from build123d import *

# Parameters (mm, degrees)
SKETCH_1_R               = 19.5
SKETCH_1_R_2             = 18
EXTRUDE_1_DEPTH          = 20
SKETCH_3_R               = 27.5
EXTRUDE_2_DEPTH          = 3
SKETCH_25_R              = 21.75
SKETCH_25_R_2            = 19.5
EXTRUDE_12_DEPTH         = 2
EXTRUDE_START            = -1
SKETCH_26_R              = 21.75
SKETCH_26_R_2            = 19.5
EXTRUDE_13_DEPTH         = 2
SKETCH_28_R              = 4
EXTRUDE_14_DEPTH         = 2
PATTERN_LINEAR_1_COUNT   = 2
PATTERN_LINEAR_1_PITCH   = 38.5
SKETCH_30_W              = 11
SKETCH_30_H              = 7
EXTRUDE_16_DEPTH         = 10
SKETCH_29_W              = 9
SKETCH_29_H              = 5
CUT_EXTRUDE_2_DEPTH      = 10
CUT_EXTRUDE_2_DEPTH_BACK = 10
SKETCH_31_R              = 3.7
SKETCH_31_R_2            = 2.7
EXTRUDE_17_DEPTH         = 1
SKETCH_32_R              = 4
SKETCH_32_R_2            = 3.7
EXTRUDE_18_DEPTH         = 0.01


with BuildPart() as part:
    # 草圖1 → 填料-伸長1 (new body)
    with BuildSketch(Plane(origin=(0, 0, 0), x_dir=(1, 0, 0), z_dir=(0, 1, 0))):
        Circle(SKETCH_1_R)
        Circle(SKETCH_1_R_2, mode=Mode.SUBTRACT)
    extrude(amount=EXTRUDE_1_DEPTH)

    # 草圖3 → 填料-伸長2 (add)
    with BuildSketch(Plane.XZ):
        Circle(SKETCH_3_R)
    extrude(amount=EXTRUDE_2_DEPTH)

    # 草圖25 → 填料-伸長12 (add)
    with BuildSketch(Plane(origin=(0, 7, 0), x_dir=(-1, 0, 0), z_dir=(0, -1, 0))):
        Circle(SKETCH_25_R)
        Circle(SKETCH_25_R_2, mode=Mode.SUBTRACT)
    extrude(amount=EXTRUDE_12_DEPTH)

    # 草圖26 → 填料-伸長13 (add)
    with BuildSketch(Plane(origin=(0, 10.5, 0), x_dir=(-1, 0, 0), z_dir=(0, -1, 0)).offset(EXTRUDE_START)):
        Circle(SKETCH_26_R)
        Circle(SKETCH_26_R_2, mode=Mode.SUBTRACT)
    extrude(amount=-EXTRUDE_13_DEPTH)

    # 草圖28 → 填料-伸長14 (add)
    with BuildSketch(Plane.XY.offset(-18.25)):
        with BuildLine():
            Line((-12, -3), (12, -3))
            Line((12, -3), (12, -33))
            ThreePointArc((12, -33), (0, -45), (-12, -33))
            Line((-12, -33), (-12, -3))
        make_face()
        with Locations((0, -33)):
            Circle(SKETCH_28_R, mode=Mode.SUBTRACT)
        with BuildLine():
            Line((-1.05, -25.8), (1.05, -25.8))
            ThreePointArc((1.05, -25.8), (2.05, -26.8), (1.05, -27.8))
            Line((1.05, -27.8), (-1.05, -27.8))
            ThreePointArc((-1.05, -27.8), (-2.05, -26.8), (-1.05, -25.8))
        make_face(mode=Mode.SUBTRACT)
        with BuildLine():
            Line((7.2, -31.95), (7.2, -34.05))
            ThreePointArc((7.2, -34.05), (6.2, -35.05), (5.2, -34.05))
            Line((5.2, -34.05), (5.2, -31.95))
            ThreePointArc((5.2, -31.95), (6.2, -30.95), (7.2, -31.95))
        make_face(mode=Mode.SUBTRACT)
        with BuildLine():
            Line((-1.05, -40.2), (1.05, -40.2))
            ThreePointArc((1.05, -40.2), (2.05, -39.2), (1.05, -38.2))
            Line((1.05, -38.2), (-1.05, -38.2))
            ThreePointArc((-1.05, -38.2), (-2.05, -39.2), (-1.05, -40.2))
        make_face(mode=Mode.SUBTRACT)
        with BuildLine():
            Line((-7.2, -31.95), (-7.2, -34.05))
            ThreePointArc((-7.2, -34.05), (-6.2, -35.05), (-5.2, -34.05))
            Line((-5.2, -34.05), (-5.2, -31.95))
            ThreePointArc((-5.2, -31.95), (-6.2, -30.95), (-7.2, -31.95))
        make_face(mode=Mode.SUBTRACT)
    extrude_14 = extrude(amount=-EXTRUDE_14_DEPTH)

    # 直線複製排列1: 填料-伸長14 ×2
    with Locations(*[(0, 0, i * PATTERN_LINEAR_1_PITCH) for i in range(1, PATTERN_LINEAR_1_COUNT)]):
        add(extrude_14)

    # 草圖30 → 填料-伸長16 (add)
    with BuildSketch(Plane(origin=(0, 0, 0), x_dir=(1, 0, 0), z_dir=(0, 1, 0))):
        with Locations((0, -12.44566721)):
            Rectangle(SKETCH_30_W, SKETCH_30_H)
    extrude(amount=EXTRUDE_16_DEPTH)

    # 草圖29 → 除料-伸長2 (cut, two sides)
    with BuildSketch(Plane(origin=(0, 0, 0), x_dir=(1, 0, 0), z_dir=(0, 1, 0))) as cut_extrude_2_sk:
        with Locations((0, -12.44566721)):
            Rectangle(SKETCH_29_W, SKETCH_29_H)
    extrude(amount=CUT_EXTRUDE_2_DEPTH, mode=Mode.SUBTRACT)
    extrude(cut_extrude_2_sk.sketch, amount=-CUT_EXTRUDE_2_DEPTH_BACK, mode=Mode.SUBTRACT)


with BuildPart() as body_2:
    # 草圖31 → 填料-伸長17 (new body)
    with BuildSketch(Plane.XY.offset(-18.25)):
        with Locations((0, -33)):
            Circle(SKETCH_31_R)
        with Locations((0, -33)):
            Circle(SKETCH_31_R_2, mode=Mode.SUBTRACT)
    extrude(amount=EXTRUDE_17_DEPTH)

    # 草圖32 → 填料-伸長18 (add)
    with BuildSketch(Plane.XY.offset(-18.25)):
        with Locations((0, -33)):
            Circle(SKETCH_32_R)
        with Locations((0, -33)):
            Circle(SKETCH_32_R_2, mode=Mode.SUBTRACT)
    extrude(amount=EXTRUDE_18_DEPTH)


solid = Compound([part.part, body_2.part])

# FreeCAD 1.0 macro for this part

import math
import FreeCAD as App
import Part
import Sketcher

V = App.Vector


def add_polygon(sketch, points):
    """Adds a closed chain of lines whose ends are joined by coincident constraints."""
    first, n = sketch.GeometryCount, len(points)
    for a, b in zip(points, points[1:] + points[:1]):
        sketch.addGeometry(Part.LineSegment(App.Vector(*a, 0), App.Vector(*b, 0)), False)
    for i in range(n):
        sketch.addConstraint(Sketcher.Constraint("Coincident", first + i, 2, first + (i + 1) % n, 1))

doc = App.newDocument("Part")
body = doc.addObject("PartDesign::Body", "Body")

sketch1 = body.newObject("Sketcher::SketchObject", "Sketch")
sketch1.AttachmentSupport = (doc.getObject("XZ_Plane"), [""])
sketch1.MapMode = "FlatFace"
sketch1.addGeometry([
    Part.Circle(V(0, 0, 0), V(0, 0, 1), 19.5),
    Part.Circle(V(0, 0, 0), V(0, 0, 1), 18),
], False)
sketch1.addConstraint([
    Sketcher.Constraint("Coincident", 0, 3, -1, 1),
    Sketcher.Constraint("Coincident", 1, 3, -1, 1),
    Sketcher.Constraint("Diameter", 0, 39.0),
    Sketcher.Constraint("Diameter", 1, 36.0),
])
pad1 = body.newObject("PartDesign::Pad", "Pad")
pad1.Profile = sketch1
pad1.Length = 20
pad1.Reversed = True

sketch2 = body.newObject("Sketcher::SketchObject", "Sketch001")
sketch2.AttachmentSupport = (doc.getObject("XZ_Plane"), [""])
sketch2.MapMode = "FlatFace"
sketch2.addGeometry(Part.Circle(V(0, 0, 0), V(0, 0, 1), 27.5), False)
sketch2.addConstraint([
    Sketcher.Constraint("Coincident", 0, 3, -1, 1),
    Sketcher.Constraint("Diameter", 0, 55.0),
])
pad2 = body.newObject("PartDesign::Pad", "Pad001")
pad2.Profile = sketch2
pad2.Length = 3

sketch3 = body.newObject("Sketcher::SketchObject", "Sketch002")
sketch3.AttachmentSupport = (doc.getObject("XZ_Plane"), [""])
sketch3.MapMode = "FlatFace"
sketch3.AttachmentOffset = App.Placement(V(0, 0, -7), App.Rotation())
sketch3.addGeometry([
    Part.Circle(V(0, 0, 0), V(0, 0, 1), 21.75),
    Part.Circle(V(0, 0, 0), V(0, 0, 1), 19.5),
], False)
sketch3.addConstraint([
    Sketcher.Constraint("Coincident", 0, 3, -1, 1),
    Sketcher.Constraint("Coincident", 1, 3, -1, 1),
    Sketcher.Constraint("Diameter", 1, 39.0),
    Sketcher.Constraint("Diameter", 0, 43.5),
])
pad3 = body.newObject("PartDesign::Pad", "Pad002")
pad3.Profile = sketch3
pad3.Length = 2

sketch4 = body.newObject("Sketcher::SketchObject", "Sketch003")
sketch4.AttachmentSupport = (doc.getObject("XZ_Plane"), [""])
sketch4.MapMode = "FlatFace"
sketch4.AttachmentOffset = App.Placement(V(0, 0, -11.5), App.Rotation())
sketch4.addGeometry([
    Part.Circle(V(0, 0, 0), V(0, 0, 1), 21.75),
    Part.Circle(V(0, 0, 0), V(0, 0, 1), 19.5),
], False)
sketch4.addConstraint([
    Sketcher.Constraint("Coincident", 0, 3, -1, 1),
    Sketcher.Constraint("Coincident", 1, 3, -1, 1),
    Sketcher.Constraint("Diameter", 1, 39.0),
    Sketcher.Constraint("Diameter", 0, 43.5),
])
pad4 = body.newObject("PartDesign::Pad", "Pad003")
pad4.Profile = sketch4
pad4.Length = 2
pad4.Reversed = True

sketch5 = body.newObject("Sketcher::SketchObject", "Sketch004")
sketch5.AttachmentSupport = (doc.getObject("XY_Plane"), [""])
sketch5.MapMode = "FlatFace"
sketch5.AttachmentOffset = App.Placement(V(0, 0, -18.25), App.Rotation())
sketch5.addGeometry([
    Part.LineSegment(V(12, -3, 0), V(-12, -3, 0)),
    Part.LineSegment(V(-12, -3, 0), V(-12, -33, 0)),
    Part.ArcOfCircle(Part.Circle(V(0, -33, 0), V(0, 0, 1), 12), math.radians(180), math.radians(360)),
    Part.LineSegment(V(12, -33, 0), V(12, -3, 0)),
    Part.ArcOfCircle(Part.Circle(V(-1.05, -39.2, 0), V(0, 0, 1), 1), math.radians(90), math.radians(270)),
    Part.LineSegment(V(-1.05, -38.2, 0), V(1.05, -38.2, 0)),
    Part.ArcOfCircle(Part.Circle(V(1.05, -39.2, 0), V(0, 0, 1), 1), math.radians(-90), math.radians(90)),
    Part.LineSegment(V(1.05, -40.2, 0), V(-1.05, -40.2, 0)),
    Part.LineSegment(V(7.2, -31.95, 0), V(7.2, -34.05, 0)),
    Part.ArcOfCircle(Part.Circle(V(6.2, -34.05, 0), V(0, 0, 1), 1), math.radians(180), math.radians(360)),
    Part.LineSegment(V(5.2, -34.05, 0), V(5.2, -31.95, 0)),
    Part.ArcOfCircle(Part.Circle(V(6.2, -31.95, 0), V(0, 0, 1), 1), math.radians(0), math.radians(180)),
    Part.Circle(V(0, -33, 0), V(0, 0, 1), 4),
    Part.ArcOfCircle(Part.Circle(V(-6.2, -31.95, 0), V(0, 0, 1), 1), math.radians(0), math.radians(180)),
    Part.LineSegment(V(-5.2, -31.95, 0), V(-5.2, -34.05, 0)),
    Part.ArcOfCircle(Part.Circle(V(-6.2, -34.05, 0), V(0, 0, 1), 1), math.radians(180), math.radians(360)),
    Part.LineSegment(V(-7.2, -34.05, 0), V(-7.2, -31.95, 0)),
    Part.LineSegment(V(-1.05, -25.8, 0), V(1.05, -25.8, 0)),
    Part.ArcOfCircle(Part.Circle(V(1.05, -26.8, 0), V(0, 0, 1), 1), math.radians(-90), math.radians(90)),
    Part.LineSegment(V(1.05, -27.8, 0), V(-1.05, -27.8, 0)),
    Part.ArcOfCircle(Part.Circle(V(-1.05, -26.8, 0), V(0, 0, 1), 1), math.radians(90), math.radians(270)),
], False)
sketch5.addConstraint([
    Sketcher.Constraint("Coincident", 0, 2, 1, 1),
    Sketcher.Constraint("Tangent", 1, 2, 2, 1),
    Sketcher.Constraint("Tangent", 2, 2, 3, 1),
    Sketcher.Constraint("Coincident", 3, 2, 0, 1),
    Sketcher.Constraint("Tangent", 4, 1, 5, 1),
    Sketcher.Constraint("Tangent", 5, 2, 6, 2),
    Sketcher.Constraint("Tangent", 6, 1, 7, 1),
    Sketcher.Constraint("Tangent", 7, 2, 4, 2),
    Sketcher.Constraint("Tangent", 8, 2, 9, 2),
    Sketcher.Constraint("Tangent", 9, 1, 10, 1),
    Sketcher.Constraint("Tangent", 10, 2, 11, 2),
    Sketcher.Constraint("Tangent", 11, 1, 8, 1),
    Sketcher.Constraint("Tangent", 13, 1, 14, 1),
    Sketcher.Constraint("Tangent", 14, 2, 15, 2),
    Sketcher.Constraint("Tangent", 15, 1, 16, 1),
    Sketcher.Constraint("Tangent", 16, 2, 13, 2),
    Sketcher.Constraint("Tangent", 17, 2, 18, 2),
    Sketcher.Constraint("Tangent", 18, 1, 19, 1),
    Sketcher.Constraint("Tangent", 19, 2, 20, 2),
    Sketcher.Constraint("Tangent", 20, 1, 17, 1),
    Sketcher.Constraint("Horizontal", 0),
    Sketcher.Constraint("Vertical", 1),
    Sketcher.Constraint("Vertical", 3),
    Sketcher.Constraint("Horizontal", 5),
    Sketcher.Constraint("Horizontal", 7),
    Sketcher.Constraint("Vertical", 8),
    Sketcher.Constraint("Vertical", 10),
    Sketcher.Constraint("Vertical", 14),
    Sketcher.Constraint("Vertical", 16),
    Sketcher.Constraint("Horizontal", 17),
    Sketcher.Constraint("Horizontal", 19),
    Sketcher.Constraint("Coincident", 12, 3, 2, 3),
    Sketcher.Constraint("Equal", 6, 9),
    Sketcher.Constraint("Equal", 11, 13),
    Sketcher.Constraint("Equal", 15, 18),
    Sketcher.Constraint("Symmetric", 11, 3, 13, 3, -2),
    Sketcher.Constraint("PointOnObject", 2, 3, -2),
    Sketcher.Constraint("Horizontal", 9, 3, 15, 3),
    Sketcher.Constraint("Vertical", 6, 3, 18, 3),
    Sketcher.Constraint("Vertical", 4, 3, 20, 3),
    Sketcher.Constraint("Equal", 19, 8),
    Sketcher.Constraint("Diameter", 12, 8.0),
    Sketcher.Constraint("Radius", 2, 12.0),
    Sketcher.Constraint("Radius", 4, 1.0),
    Sketcher.Constraint("DistanceY", 1, 2, 1, 1, 30.0),
    Sketcher.Constraint("DistanceX", 5, 1, 5, 2, 2.1),
    Sketcher.Constraint("DistanceY", 2, 3, -1, 1, 33.0),
    Sketcher.Constraint("DistanceY", 4, 3, -1, 1, 39.2),
    Sketcher.Constraint("DistanceX", -1, 1, 9, 3, 6.2),
    Sketcher.Constraint("DistanceY", 18, 3, -1, 1, 26.8),
    Sketcher.Constraint("DistanceX", 4, 3, -1, 1, 1.05),
    Sketcher.Constraint("DistanceY", 9, 3, -1, 1, 34.05),
])
pad5 = body.newObject("PartDesign::Pad", "Pad004")
pad5.Profile = sketch5
pad5.Length = 2
pad5.Reversed = True
doc.recompute()

linearpattern = body.newObject("PartDesign::LinearPattern", "LinearPattern")
linearpattern.Originals = [pad5]
linearpattern.Direction = (doc.getObject("Z_Axis"), [""])
linearpattern.Mode = "offset"
linearpattern.Offset = 38.5
linearpattern.Occurrences = 2
body.Tip = linearpattern

sketch6 = body.newObject("Sketcher::SketchObject", "Sketch005")
sketch6.AttachmentSupport = (doc.getObject("XZ_Plane"), [""])
sketch6.MapMode = "FlatFace"
add_polygon(sketch6, [(-5.5, 8.945667), (-5.5, 15.945667), (5.5, 15.945667), (5.5, 8.945667)])
sketch6.addConstraint([
    Sketcher.Constraint("Vertical", 0),
    Sketcher.Constraint("Horizontal", 1),
    Sketcher.Constraint("Vertical", 2),
    Sketcher.Constraint("Horizontal", 3),
    Sketcher.Constraint("DistanceX", 1, 1, 1, 2, 11.0),
    Sketcher.Constraint("DistanceY", 0, 1, 0, 2, 7.0),
    Sketcher.Constraint("DistanceX", 0, 2, -1, 1, 5.5),
    Sketcher.Constraint("DistanceY", -1, 1, 0, 2, 15.945667),
])
pad6 = body.newObject("PartDesign::Pad", "Pad005")
pad6.Profile = sketch6
pad6.Length = 10
pad6.Reversed = True

sketch7 = body.newObject("Sketcher::SketchObject", "Sketch006")
sketch7.AttachmentSupport = (doc.getObject("XZ_Plane"), [""])
sketch7.MapMode = "FlatFace"
add_polygon(sketch7, [(-4.5, 9.945667), (-4.5, 14.945667), (4.5, 14.945667), (4.5, 9.945667)])
sketch7.addConstraint([
    Sketcher.Constraint("Vertical", 0),
    Sketcher.Constraint("Horizontal", 1),
    Sketcher.Constraint("Vertical", 2),
    Sketcher.Constraint("Horizontal", 3),
    Sketcher.Constraint("DistanceX", 1, 1, 1, 2, 9.0),
    Sketcher.Constraint("DistanceY", 0, 1, 0, 2, 5.0),
    Sketcher.Constraint("DistanceX", 0, 2, -1, 1, 4.5),
    Sketcher.Constraint("DistanceY", -1, 1, 0, 2, 14.945667),
])
pocket1 = body.newObject("PartDesign::Pocket", "Pocket")
pocket1.Profile = sketch7
pocket1.Type = "ThroughAll"
pocket1.Midplane = True
body2 = doc.addObject("PartDesign::Body", "Body001")

sketch8 = body2.newObject("Sketcher::SketchObject", "Sketch007")
sketch8.AttachmentSupport = (doc.getObject("XY_Plane001"), [""])
sketch8.MapMode = "FlatFace"
sketch8.AttachmentOffset = App.Placement(V(0, 0, -18.25), App.Rotation())
sketch8.addGeometry([
    Part.Circle(V(0, -33, 0), V(0, 0, 1), 3.7),
    Part.Circle(V(0, -33, 0), V(0, 0, 1), 2.7),
], False)
sketch8.addConstraint([
    Sketcher.Constraint("Coincident", 1, 3, 0, 3),
    Sketcher.Constraint("PointOnObject", 0, 3, -2),
    Sketcher.Constraint("Diameter", 0, 7.4),
    Sketcher.Constraint("Diameter", 1, 5.4),
    Sketcher.Constraint("DistanceY", 0, 3, -1, 1, 33.0),
])
pad7 = body2.newObject("PartDesign::Pad", "Pad006")
pad7.Profile = sketch8
pad7.Length = 1

sketch9 = body2.newObject("Sketcher::SketchObject", "Sketch008")
sketch9.AttachmentSupport = (doc.getObject("XY_Plane001"), [""])
sketch9.MapMode = "FlatFace"
sketch9.AttachmentOffset = App.Placement(V(0, 0, -18.25), App.Rotation())
sketch9.addGeometry([
    Part.Circle(V(0, -33, 0), V(0, 0, 1), 4),
    Part.Circle(V(0, -33, 0), V(0, 0, 1), 3.7),
], False)
sketch9.addConstraint([
    Sketcher.Constraint("Coincident", 1, 3, 0, 3),
    Sketcher.Constraint("PointOnObject", 0, 3, -2),
    Sketcher.Constraint("Diameter", 0, 8.0),
    Sketcher.Constraint("Diameter", 1, 7.4),
    Sketcher.Constraint("DistanceY", 0, 3, -1, 1, 33.0),
])
pad8 = body2.newObject("PartDesign::Pad", "Pad007")
pad8.Profile = sketch9
pad8.Length = 0.01

doc.recompute()
